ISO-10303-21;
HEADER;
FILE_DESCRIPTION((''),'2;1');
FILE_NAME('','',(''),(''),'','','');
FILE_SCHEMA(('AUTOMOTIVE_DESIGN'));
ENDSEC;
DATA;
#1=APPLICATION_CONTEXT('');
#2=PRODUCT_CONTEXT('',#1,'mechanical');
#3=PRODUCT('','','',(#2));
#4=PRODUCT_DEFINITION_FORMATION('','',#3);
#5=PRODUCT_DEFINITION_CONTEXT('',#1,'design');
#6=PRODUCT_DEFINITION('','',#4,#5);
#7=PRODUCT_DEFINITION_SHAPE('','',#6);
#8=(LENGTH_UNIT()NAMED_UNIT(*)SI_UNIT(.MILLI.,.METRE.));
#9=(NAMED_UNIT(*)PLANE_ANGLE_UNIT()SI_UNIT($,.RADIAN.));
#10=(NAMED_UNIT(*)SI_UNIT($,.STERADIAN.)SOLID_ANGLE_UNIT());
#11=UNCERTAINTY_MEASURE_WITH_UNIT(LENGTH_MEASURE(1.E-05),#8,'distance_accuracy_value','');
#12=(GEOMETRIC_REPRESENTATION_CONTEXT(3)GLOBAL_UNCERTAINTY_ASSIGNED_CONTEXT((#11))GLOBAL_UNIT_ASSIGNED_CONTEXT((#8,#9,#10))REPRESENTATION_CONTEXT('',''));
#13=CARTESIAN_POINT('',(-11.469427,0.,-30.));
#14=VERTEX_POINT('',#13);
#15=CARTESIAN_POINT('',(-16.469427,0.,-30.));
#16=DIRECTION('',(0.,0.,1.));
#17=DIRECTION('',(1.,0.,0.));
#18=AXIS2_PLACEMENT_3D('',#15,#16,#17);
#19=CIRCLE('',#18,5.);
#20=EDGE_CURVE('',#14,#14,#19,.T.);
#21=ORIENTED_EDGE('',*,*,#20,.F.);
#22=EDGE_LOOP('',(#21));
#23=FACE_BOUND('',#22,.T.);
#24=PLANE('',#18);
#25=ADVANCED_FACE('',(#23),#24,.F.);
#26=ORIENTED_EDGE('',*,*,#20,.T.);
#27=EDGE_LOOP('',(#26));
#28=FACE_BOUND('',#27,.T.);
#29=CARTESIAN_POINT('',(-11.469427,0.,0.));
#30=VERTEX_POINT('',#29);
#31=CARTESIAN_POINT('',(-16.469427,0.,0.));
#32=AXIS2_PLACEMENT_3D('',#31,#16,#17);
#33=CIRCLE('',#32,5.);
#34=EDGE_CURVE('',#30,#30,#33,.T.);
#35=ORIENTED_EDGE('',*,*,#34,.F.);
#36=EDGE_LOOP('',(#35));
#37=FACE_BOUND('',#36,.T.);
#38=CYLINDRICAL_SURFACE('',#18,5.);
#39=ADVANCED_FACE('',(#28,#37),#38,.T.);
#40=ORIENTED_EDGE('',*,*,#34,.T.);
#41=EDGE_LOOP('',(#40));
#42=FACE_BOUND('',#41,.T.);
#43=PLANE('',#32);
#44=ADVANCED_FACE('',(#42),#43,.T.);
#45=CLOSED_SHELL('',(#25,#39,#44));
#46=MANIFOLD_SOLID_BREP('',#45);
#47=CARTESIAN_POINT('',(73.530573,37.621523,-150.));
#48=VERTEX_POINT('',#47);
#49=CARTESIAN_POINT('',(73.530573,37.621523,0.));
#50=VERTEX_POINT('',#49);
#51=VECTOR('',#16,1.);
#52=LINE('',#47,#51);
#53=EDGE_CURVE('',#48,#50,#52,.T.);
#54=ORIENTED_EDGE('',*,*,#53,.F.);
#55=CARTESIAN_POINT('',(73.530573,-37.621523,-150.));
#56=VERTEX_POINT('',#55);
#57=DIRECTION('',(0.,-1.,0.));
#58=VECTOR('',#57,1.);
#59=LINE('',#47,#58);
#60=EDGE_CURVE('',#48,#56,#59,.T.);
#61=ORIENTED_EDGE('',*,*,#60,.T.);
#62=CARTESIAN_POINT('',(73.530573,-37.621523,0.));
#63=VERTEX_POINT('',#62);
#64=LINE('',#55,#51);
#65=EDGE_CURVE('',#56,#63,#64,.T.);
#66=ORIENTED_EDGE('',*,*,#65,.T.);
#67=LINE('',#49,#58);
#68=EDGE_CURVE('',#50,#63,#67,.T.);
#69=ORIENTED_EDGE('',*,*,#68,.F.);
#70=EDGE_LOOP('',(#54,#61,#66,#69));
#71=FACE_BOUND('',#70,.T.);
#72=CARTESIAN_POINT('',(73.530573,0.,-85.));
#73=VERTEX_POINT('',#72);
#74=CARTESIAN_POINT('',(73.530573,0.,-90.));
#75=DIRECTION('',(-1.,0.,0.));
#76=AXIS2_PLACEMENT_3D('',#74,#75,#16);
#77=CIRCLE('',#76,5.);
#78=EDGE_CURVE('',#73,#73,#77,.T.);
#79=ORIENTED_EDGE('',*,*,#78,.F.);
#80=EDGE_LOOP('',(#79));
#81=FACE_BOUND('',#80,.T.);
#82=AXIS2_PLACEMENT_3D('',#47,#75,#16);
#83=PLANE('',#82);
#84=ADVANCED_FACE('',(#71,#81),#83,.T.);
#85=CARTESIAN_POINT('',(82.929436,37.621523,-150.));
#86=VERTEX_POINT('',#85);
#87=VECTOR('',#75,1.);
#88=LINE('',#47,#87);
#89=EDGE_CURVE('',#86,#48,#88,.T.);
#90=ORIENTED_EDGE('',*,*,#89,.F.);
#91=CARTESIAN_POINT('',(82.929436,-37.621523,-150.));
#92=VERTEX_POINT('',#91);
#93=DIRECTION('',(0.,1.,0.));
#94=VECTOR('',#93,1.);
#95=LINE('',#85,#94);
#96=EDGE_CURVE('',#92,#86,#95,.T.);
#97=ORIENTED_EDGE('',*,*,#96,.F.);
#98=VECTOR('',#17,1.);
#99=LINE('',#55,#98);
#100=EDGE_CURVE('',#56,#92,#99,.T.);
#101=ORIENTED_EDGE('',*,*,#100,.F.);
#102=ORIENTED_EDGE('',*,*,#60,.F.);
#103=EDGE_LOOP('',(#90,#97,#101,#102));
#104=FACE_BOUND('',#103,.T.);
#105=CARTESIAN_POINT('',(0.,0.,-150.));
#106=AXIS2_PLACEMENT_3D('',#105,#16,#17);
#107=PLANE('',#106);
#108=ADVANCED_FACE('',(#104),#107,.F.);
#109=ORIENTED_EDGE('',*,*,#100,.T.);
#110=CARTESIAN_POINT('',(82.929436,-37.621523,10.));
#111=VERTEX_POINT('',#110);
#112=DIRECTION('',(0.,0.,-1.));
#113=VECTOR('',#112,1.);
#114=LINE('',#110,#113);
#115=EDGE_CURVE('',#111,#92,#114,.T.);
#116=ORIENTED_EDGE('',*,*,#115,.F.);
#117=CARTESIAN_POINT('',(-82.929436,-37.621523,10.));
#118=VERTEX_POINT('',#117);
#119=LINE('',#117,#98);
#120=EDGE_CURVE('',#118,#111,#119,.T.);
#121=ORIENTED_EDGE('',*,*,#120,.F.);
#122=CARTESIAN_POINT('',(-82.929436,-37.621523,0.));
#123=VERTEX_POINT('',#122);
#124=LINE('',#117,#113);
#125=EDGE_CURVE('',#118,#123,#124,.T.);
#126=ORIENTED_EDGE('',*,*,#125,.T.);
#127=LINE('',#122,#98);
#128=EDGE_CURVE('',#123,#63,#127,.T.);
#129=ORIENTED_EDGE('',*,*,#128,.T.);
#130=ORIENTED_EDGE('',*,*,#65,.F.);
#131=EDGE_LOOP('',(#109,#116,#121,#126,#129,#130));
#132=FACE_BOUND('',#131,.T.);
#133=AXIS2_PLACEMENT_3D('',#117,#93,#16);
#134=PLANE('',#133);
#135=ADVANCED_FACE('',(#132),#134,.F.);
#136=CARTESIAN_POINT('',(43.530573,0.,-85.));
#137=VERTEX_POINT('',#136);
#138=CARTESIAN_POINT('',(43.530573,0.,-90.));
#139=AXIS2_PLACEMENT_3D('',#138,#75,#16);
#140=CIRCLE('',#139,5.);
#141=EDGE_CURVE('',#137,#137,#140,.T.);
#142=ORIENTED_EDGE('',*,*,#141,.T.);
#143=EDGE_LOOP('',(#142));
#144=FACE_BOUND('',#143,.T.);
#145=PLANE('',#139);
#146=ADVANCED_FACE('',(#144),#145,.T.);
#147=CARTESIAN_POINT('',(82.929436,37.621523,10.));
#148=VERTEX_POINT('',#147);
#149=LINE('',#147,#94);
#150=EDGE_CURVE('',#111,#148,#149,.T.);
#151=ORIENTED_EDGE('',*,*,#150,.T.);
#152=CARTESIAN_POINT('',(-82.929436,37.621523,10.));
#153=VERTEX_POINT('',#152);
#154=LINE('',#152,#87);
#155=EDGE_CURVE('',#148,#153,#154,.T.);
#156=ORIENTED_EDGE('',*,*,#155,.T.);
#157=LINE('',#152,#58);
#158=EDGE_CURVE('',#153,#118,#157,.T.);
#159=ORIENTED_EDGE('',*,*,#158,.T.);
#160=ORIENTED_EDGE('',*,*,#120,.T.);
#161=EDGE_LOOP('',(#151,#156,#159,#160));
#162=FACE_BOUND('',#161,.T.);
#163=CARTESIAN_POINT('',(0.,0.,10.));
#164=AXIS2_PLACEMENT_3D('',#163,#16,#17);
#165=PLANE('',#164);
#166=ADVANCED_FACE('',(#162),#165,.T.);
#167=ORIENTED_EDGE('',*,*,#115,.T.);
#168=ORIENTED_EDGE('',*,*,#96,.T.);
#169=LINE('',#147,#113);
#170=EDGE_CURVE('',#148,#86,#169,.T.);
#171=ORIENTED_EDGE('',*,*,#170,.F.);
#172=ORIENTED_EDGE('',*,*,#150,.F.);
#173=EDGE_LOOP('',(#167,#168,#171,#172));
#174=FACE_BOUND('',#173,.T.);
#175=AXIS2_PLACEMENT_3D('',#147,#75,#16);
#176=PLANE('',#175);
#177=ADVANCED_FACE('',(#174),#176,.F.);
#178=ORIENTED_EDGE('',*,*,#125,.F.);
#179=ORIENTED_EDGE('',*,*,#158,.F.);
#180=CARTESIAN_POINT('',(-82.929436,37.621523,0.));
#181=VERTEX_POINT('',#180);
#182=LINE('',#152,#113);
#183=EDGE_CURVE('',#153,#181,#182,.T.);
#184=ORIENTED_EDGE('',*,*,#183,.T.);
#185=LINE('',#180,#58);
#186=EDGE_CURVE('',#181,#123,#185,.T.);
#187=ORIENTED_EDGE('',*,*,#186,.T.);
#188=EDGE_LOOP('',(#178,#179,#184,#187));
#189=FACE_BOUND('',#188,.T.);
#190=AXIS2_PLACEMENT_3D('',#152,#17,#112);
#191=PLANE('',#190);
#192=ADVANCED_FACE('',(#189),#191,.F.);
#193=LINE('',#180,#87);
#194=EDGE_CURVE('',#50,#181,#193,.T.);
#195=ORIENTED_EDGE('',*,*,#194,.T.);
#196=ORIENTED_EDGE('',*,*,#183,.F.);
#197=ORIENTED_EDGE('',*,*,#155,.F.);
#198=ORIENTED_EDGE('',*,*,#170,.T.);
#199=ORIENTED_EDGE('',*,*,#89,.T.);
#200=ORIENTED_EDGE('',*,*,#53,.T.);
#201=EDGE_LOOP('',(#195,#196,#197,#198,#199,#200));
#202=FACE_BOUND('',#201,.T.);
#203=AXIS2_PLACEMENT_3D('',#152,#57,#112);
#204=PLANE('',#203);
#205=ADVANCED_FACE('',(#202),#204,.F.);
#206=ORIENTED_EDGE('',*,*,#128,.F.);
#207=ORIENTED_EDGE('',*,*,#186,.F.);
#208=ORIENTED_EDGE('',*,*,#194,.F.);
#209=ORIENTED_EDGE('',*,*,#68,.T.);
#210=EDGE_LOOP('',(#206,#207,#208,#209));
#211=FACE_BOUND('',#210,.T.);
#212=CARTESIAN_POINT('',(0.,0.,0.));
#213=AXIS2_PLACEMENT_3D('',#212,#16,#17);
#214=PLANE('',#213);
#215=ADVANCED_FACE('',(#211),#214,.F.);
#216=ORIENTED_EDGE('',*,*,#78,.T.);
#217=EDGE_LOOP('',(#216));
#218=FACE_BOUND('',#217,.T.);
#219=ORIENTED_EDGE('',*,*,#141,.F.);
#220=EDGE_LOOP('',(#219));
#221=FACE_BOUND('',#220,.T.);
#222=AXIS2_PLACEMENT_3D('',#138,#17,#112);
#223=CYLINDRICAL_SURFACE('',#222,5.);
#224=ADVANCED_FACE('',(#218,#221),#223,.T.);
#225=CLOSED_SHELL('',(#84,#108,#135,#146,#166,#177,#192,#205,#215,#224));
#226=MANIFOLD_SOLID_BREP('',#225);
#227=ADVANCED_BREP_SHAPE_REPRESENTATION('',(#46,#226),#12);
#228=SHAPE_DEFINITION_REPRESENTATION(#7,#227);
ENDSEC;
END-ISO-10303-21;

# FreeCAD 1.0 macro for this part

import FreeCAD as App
import Part
import Sketcher

V = App.Vector
Q = App.Units.Quantity

doc = App.newDocument("Part")
body = doc.addObject("PartDesign::Body", "Body")

sketch1 = body.newObject("Sketcher::SketchObject", "Sketch")
sketch1.AttachmentSupport = (doc.getObject("XY_Plane"), [""])
sketch1.MapMode = "FlatFace"
sketch1.addGeometry(Part.LineSegment(V(-83, 38, 0), V(-83, -38, 0)), False)
sketch1.addGeometry(Part.LineSegment(V(-83, -38, 0), V(83, -38, 0)), False)
sketch1.addGeometry(Part.LineSegment(V(83, -38, 0), V(83, 38, 0)), False)
sketch1.addGeometry(Part.LineSegment(V(83, 38, 0), V(-83, 38, 0)), False)
sketch1.addConstraint(Sketcher.Constraint("Coincident", 0, 2, 1, 1))
sketch1.addConstraint(Sketcher.Constraint("Coincident", 1, 2, 2, 1))
sketch1.addConstraint(Sketcher.Constraint("Coincident", 2, 2, 3, 1))
sketch1.addConstraint(Sketcher.Constraint("Coincident", 3, 2, 0, 1))
sketch1.addConstraint(Sketcher.Constraint("Vertical", 0))
sketch1.addConstraint(Sketcher.Constraint("Horizontal", 1))
sketch1.addConstraint(Sketcher.Constraint("Vertical", 2))
sketch1.addConstraint(Sketcher.Constraint("Horizontal", 3))
sketch1.addConstraint(Sketcher.Constraint("Symmetric", 0, 2, 2, 2, -1, 1))
sketch1.addConstraint(Sketcher.Constraint("DistanceX", 1, 1, 1, 2, Q("165.858873 mm")))
sketch1.addConstraint(Sketcher.Constraint("DistanceY", 0, 2, 0, 1, Q("75.243047 mm")))
pad1 = body.newObject("PartDesign::Pad", "Pad")
pad1.Profile = sketch1
pad1.Length = 10

sketch2 = body.newObject("Sketcher::SketchObject", "Sketch001")
sketch2.AttachmentSupport = (doc.getObject("XY_Plane"), [""])
sketch2.MapMode = "FlatFace"
sketch2.addGeometry(Part.LineSegment(V(74, 38, 0), V(74, -38, 0)), False)
sketch2.addGeometry(Part.LineSegment(V(74, -38, 0), V(83, -38, 0)), False)
sketch2.addGeometry(Part.LineSegment(V(83, -38, 0), V(83, 38, 0)), False)
sketch2.addGeometry(Part.LineSegment(V(83, 38, 0), V(74, 38, 0)), False)
sketch2.addConstraint(Sketcher.Constraint("Coincident", 0, 2, 1, 1))
sketch2.addConstraint(Sketcher.Constraint("Coincident", 1, 2, 2, 1))
sketch2.addConstraint(Sketcher.Constraint("Coincident", 2, 2, 3, 1))
sketch2.addConstraint(Sketcher.Constraint("Coincident", 3, 2, 0, 1))
sketch2.addConstraint(Sketcher.Constraint("Vertical", 0))
sketch2.addConstraint(Sketcher.Constraint("Horizontal", 1))
sketch2.addConstraint(Sketcher.Constraint("Vertical", 2))
sketch2.addConstraint(Sketcher.Constraint("Horizontal", 3))
sketch2.addConstraint(Sketcher.Constraint("DistanceX", 1, 1, 1, 2, Q("9.398863 mm")))
sketch2.addConstraint(Sketcher.Constraint("DistanceY", 0, 2, 0, 1, Q("75.243047 mm")))
sketch2.addConstraint(Sketcher.Constraint("DistanceX", -1, 1, 0, 2, Q("73.530573 mm")))
sketch2.addConstraint(Sketcher.Constraint("DistanceY", 0, 2, -1, 1, Q("37.621523 mm")))
pad2 = body.newObject("PartDesign::Pad", "Pad001")
pad2.Profile = sketch2
pad2.Length = 150
pad2.Reversed = True

sketch3 = body.newObject("Sketcher::SketchObject", "Sketch002")
sketch3.AttachmentSupport = (doc.getObject("YZ_Plane"), [""])
sketch3.MapMode = "FlatFace"
sketch3.AttachmentOffset = App.Placement(V(0, 0, 73.530573), App.Rotation())
sketch3.addGeometry(Part.Circle(V(0, -90, 0), V(0, 0, 1), 5), False)
sketch3.addConstraint(Sketcher.Constraint("PointOnObject", 0, 3, -2))
sketch3.addConstraint(Sketcher.Constraint("Diameter", 0, Q("10 mm")))
sketch3.addConstraint(Sketcher.Constraint("DistanceY", 0, 3, -1, 1, Q("90 mm")))
pad3 = body.newObject("PartDesign::Pad", "Pad002")
pad3.Profile = sketch3
pad3.Length = 30
pad3.Reversed = True
body2 = doc.addObject("PartDesign::Body", "Body001")

sketch4 = body2.newObject("Sketcher::SketchObject", "Sketch003")
sketch4.AttachmentSupport = (doc.getObject("XY_Plane001"), [""])
sketch4.MapMode = "FlatFace"
sketch4.addGeometry(Part.Circle(V(-16, 0, 0), V(0, 0, 1), 5), False)
sketch4.addConstraint(Sketcher.Constraint("PointOnObject", 0, 3, -1))
sketch4.addConstraint(Sketcher.Constraint("Diameter", 0, Q("10 mm")))
sketch4.addConstraint(Sketcher.Constraint("DistanceX", 0, 3, -1, 1, Q("16.469427 mm")))
pad4 = body2.newObject("PartDesign::Pad", "Pad003")
pad4.Profile = sketch4
pad4.Length = 30
pad4.Reversed = True

doc.recompute()
